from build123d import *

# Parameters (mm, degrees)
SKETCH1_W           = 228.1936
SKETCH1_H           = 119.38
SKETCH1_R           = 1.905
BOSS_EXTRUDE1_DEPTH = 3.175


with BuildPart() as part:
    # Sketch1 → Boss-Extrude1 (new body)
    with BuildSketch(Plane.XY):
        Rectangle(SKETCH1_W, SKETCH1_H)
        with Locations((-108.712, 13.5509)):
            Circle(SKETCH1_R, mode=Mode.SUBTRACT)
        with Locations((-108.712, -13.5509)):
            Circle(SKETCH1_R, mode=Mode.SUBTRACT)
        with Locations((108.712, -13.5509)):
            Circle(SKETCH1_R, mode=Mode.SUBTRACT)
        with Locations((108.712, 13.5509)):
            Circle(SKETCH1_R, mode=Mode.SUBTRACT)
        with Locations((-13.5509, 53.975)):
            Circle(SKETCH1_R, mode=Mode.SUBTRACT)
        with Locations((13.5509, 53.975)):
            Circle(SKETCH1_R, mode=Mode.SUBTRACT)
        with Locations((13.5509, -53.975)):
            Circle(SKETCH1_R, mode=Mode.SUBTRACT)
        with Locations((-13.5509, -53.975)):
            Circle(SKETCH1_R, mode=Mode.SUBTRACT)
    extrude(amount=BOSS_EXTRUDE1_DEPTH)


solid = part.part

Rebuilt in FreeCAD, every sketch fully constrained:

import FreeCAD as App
import Part
import Sketcher
Q = App.Units.Quantity


def add_polygon(sketch, points):
    """Adds a closed chain of lines whose ends are joined by coincident constraints."""
    first, n = sketch.GeometryCount, len(points)
    for a, b in zip(points, points[1:] + points[:1]):
        sketch.addGeometry(Part.LineSegment(App.Vector(*a, 0), App.Vector(*b, 0)), False)
    for i in range(n):
        sketch.addConstraint(Sketcher.Constraint("Coincident", first + i, 2, first + (i + 1) % n, 1))

doc = App.newDocument("Part")
body = doc.addObject("PartDesign::Body", "Body")

# Sketch on XY plane
sketch1 = body.newObject("Sketcher::SketchObject", "Sketch")
sketch1.AttachmentSupport = (doc.getObject("XY_Plane"), [""])
sketch1.MapMode = "FlatFace"
add_polygon(sketch1, [(-114.0968, 59.69), (-114.0968, -59.69), (114.0968, -59.69), (114.0968, 59.69)])  # lines 0-3
sketch1.addGeometry(Part.Circle(App.Vector(-13.5509, -53.975, 0), App.Vector(0, 0, 1), 1.905), False)  # 4
sketch1.addGeometry(Part.Circle(App.Vector(-108.712, -13.5509, 0), App.Vector(0, 0, 1), 1.905), False)  # 5
sketch1.addGeometry(Part.Circle(App.Vector(13.5509, -53.975, 0), App.Vector(0, 0, 1), 1.905), False)  # 6
sketch1.addGeometry(Part.Circle(App.Vector(108.712, -13.5509, 0), App.Vector(0, 0, 1), 1.905), False)  # 7
sketch1.addGeometry(Part.Circle(App.Vector(-108.712, 13.5509, 0), App.Vector(0, 0, 1), 1.905), False)  # 8
sketch1.addGeometry(Part.Circle(App.Vector(-13.5509, 53.975, 0), App.Vector(0, 0, 1), 1.905), False)  # 9
sketch1.addGeometry(Part.Circle(App.Vector(108.712, 13.5509, 0), App.Vector(0, 0, 1), 1.905), False)  # 10
sketch1.addGeometry(Part.Circle(App.Vector(13.5509, 53.975, 0), App.Vector(0, 0, 1), 1.905), False)  # 11
sketch1.addConstraint([
    Sketcher.Constraint("Vertical", 0),
    Sketcher.Constraint("Horizontal", 1),
    Sketcher.Constraint("Vertical", 2),
    Sketcher.Constraint("Horizontal", 3),
    Sketcher.Constraint("Equal", 4, 5),
    Sketcher.Constraint("Equal", 5, 6),
    Sketcher.Constraint("Equal", 6, 7),
    Sketcher.Constraint("Equal", 7, 8),
    Sketcher.Constraint("Equal", 8, 9),
    Sketcher.Constraint("Equal", 9, 10),
    Sketcher.Constraint("Equal", 10, 11),
    Sketcher.Constraint("Symmetric", 7, 3, 8, 3, -1, 1),
    Sketcher.Constraint("Symmetric", 6, 3, 9, 3, -1, 1),
    Sketcher.Constraint("Symmetric", 5, 3, 10, 3, -1, 1),
    Sketcher.Constraint("Symmetric", 4, 3, 11, 3, -1, 1),
    Sketcher.Constraint("Symmetric", 0, 2, 2, 2, -1, 1),
    Sketcher.Constraint("Symmetric", 4, 3, 6, 3, -2),
    Sketcher.Constraint("Symmetric", 5, 3, 7, 3, -2),
    Sketcher.Constraint("Diameter", 4, Q("0.15 in")),
    Sketcher.Constraint("DistanceY", 0, 2, 0, 1, Q("4.7 in")),
    Sketcher.Constraint("DistanceX", 1, 1, 1, 2, Q("8.984 in")),
    Sketcher.Constraint("DistanceX", 5, 3, -1, 1, Q("4.28 in")),
    Sketcher.Constraint("DistanceY", 4, 3, 9, 3, Q("4.25 in")),
    Sketcher.Constraint("DistanceX", 4, 3, 6, 3, Q("1.067 in")),
    Sketcher.Constraint("DistanceY", 5, 3, 8, 3, Q("1.067 in")),
])
pad1 = body.newObject("PartDesign::Pad", "Pad")
pad1.Profile = sketch1
pad1.Length = Q("0.125 in")

doc.recompute()
